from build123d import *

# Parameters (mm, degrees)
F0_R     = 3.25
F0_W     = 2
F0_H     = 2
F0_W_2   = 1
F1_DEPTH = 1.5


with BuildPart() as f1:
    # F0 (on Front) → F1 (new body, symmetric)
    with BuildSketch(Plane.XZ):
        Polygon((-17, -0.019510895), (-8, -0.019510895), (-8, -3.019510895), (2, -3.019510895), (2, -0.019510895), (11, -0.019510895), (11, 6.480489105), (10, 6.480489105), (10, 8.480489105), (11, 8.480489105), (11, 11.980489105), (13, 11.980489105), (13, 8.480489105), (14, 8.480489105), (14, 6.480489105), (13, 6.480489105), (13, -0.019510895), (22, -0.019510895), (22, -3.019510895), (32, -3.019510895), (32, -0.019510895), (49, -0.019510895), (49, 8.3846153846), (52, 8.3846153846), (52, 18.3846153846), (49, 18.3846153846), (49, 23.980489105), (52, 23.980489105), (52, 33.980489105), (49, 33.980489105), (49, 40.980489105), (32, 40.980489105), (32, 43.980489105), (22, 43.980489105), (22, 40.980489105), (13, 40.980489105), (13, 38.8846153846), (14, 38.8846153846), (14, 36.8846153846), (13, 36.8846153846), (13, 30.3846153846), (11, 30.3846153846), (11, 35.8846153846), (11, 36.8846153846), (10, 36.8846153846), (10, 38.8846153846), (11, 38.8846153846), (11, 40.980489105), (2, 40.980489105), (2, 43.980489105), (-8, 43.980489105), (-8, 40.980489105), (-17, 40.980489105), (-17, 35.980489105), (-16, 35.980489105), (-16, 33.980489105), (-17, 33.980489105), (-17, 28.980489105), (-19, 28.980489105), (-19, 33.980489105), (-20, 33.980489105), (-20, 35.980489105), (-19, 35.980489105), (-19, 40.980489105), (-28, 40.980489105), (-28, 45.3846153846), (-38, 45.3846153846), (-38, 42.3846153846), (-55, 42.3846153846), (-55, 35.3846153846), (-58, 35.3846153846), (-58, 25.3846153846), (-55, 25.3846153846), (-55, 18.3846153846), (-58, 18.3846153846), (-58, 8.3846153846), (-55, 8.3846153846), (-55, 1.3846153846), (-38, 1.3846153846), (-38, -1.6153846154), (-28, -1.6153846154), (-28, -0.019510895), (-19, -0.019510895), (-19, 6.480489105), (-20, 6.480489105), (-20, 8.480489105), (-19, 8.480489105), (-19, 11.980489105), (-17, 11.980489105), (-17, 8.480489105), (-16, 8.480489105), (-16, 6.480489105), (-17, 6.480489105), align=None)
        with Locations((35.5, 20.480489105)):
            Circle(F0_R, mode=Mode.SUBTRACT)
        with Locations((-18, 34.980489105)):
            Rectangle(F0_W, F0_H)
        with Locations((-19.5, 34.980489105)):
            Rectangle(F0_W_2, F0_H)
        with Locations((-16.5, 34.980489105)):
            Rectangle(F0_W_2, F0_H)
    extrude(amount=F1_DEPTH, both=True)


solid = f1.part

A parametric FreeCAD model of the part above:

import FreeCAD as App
import Part
import Sketcher
from FreeCAD import Vector


def add_polygon(sketch, points):
    """Adds a closed chain of lines whose ends are joined by coincident constraints."""
    first, n = sketch.GeometryCount, len(points)
    for a, b in zip(points, points[1:] + points[:1]):
        sketch.addGeometry(Part.LineSegment(App.Vector(*a, 0), App.Vector(*b, 0)), False)
    for i in range(n):
        sketch.addConstraint(Sketcher.Constraint("Coincident", first + i, 2, first + (i + 1) % n, 1))

doc = App.newDocument("Part")
params = doc.addObject("Spreadsheet::Sheet", "Params")
for row, (alias, value) in enumerate([
    ("sketch1_diameter", "6.5 mm"),
    ("sketch1_width", "2 mm"),
    ("sketch1_width2", "9 mm"),
    ("sketch1_width3", "10 mm"),
    ("sketch1_width4", "17 mm"),
    ("pad1_length", "3 mm"),
], start=1):
    params.set(f"A{row}", alias)
    params.set(f"B{row}", "=" + value)
    params.setAlias(f"B{row}", alias)

body = doc.addObject("PartDesign::Body", "Body")

# Sketch on XZ plane
sketch1 = doc.addObject("Sketcher::SketchObject", "Sketch")
body.addObject(sketch1)
sketch1.AttachmentSupport = (doc.XZ_Plane, [""])
sketch1.MapMode = "FlatFace"
add_polygon(sketch1, [(-17, 41), (-17, 36), (-19, 36), (-19, 41), (-28, 41), (-28, 45.4), (-38, 45.4), (-38, 42.4), (-55, 42.4), (-55, 35.4), (-58, 35.4), (-58, 25.4), (-55, 25.4), (-55, 18.4), (-58, 18.4), (-58, 8.4), (-55, 8.4), (-55, 1.4), (-38, 1.4), (-38, -1.6), (-28, -1.6), (-28, 0), (-19, 0), (-19, 6.5), (-20, 6.5), (-20, 8.5), (-19, 8.5), (-19, 12), (-17, 12), (-17, 8.5), (-16, 8.5), (-16, 6.5), (-17, 6.5), (-17, 0), (-8, 0), (-8, -3), (2, -3), (2, 0), (11, 0), (11, 6.5), (10, 6.5), (10, 8.5), (11, 8.5), (11, 12), (13, 12), (13, 8.5), (14, 8.5), (14, 6.5), (13, 6.5), (13, 0), (22, 0), (22, -3), (32, -3), (32, 0), (49, 0), (49, 8.4), (52, 8.4), (52, 18.4), (49, 18.4), (49, 24), (52, 24), (52, 34), (49, 34), (49, 41), (32, 41), (32, 44), (22, 44), (22, 41), (13, 41), (13, 38.9), (14, 38.9), (14, 36.9), (13, 36.9), (13, 30.4), (11, 30.4), (11, 36.9), (10, 36.9), (10, 38.9), (11, 38.9), (11, 41), (2, 41), (2, 44), (-8, 44), (-8, 41)])  # lines 0-83
sketch1.addGeometry(Part.Circle(Vector(35.5, 20.5, 0), Vector(0, 0, 1), 3.2), False)  # 84
add_polygon(sketch1, [(-19, 34), (-17, 34), (-17, 29), (-19, 29)])  # lines 85-88
sketch1.addConstraint(Sketcher.Constraint("Vertical", 0))
sketch1.addConstraint(Sketcher.Constraint("Horizontal", 1))
sketch1.addConstraint(Sketcher.Constraint("Vertical", 2))
sketch1.addConstraint(Sketcher.Constraint("Horizontal", 3))
sketch1.addConstraint(Sketcher.Constraint("Vertical", 4))
sketch1.addConstraint(Sketcher.Constraint("Horizontal", 5))
sketch1.addConstraint(Sketcher.Constraint("Vertical", 6))
sketch1.addConstraint(Sketcher.Constraint("Horizontal", 7))
sketch1.addConstraint(Sketcher.Constraint("Vertical", 8))
sketch1.addConstraint(Sketcher.Constraint("Horizontal", 9))
sketch1.addConstraint(Sketcher.Constraint("Vertical", 10))
sketch1.addConstraint(Sketcher.Constraint("Horizontal", 11))
sketch1.addConstraint(Sketcher.Constraint("Vertical", 12))
sketch1.addConstraint(Sketcher.Constraint("Horizontal", 13))
sketch1.addConstraint(Sketcher.Constraint("Vertical", 14))
sketch1.addConstraint(Sketcher.Constraint("Horizontal", 15))
sketch1.addConstraint(Sketcher.Constraint("Vertical", 16))
sketch1.addConstraint(Sketcher.Constraint("Horizontal", 17))
sketch1.addConstraint(Sketcher.Constraint("Vertical", 18))
sketch1.addConstraint(Sketcher.Constraint("Horizontal", 19))
sketch1.addConstraint(Sketcher.Constraint("Vertical", 20))
sketch1.addConstraint(Sketcher.Constraint("Horizontal", 21))
sketch1.addConstraint(Sketcher.Constraint("Vertical", 22))
sketch1.addConstraint(Sketcher.Constraint("Horizontal", 23))
sketch1.addConstraint(Sketcher.Constraint("Vertical", 24))
sketch1.addConstraint(Sketcher.Constraint("Horizontal", 25))
sketch1.addConstraint(Sketcher.Constraint("Vertical", 26))
sketch1.addConstraint(Sketcher.Constraint("Horizontal", 27))
sketch1.addConstraint(Sketcher.Constraint("Vertical", 28))
sketch1.addConstraint(Sketcher.Constraint("Horizontal", 29))
sketch1.addConstraint(Sketcher.Constraint("Vertical", 30))
sketch1.addConstraint(Sketcher.Constraint("Horizontal", 31))
sketch1.addConstraint(Sketcher.Constraint("Vertical", 32))
sketch1.addConstraint(Sketcher.Constraint("Horizontal", 33))
sketch1.addConstraint(Sketcher.Constraint("Vertical", 34))
sketch1.addConstraint(Sketcher.Constraint("Horizontal", 35))
sketch1.addConstraint(Sketcher.Constraint("Vertical", 36))
sketch1.addConstraint(Sketcher.Constraint("Horizontal", 37))
sketch1.addConstraint(Sketcher.Constraint("Vertical", 38))
sketch1.addConstraint(Sketcher.Constraint("Horizontal", 39))
sketch1.addConstraint(Sketcher.Constraint("Vertical", 40))
sketch1.addConstraint(Sketcher.Constraint("Horizontal", 41))
sketch1.addConstraint(Sketcher.Constraint("Vertical", 42))
sketch1.addConstraint(Sketcher.Constraint("Horizontal", 43))
sketch1.addConstraint(Sketcher.Constraint("Vertical", 44))
sketch1.addConstraint(Sketcher.Constraint("Horizontal", 45))
sketch1.addConstraint(Sketcher.Constraint("Vertical", 46))
sketch1.addConstraint(Sketcher.Constraint("Horizontal", 47))
sketch1.addConstraint(Sketcher.Constraint("Vertical", 48))
sketch1.addConstraint(Sketcher.Constraint("Horizontal", 49))
sketch1.addConstraint(Sketcher.Constraint("Vertical", 50))
sketch1.addConstraint(Sketcher.Constraint("Horizontal", 51))
sketch1.addConstraint(Sketcher.Constraint("Vertical", 52))
sketch1.addConstraint(Sketcher.Constraint("Horizontal", 53))
sketch1.addConstraint(Sketcher.Constraint("Vertical", 54))
sketch1.addConstraint(Sketcher.Constraint("Horizontal", 55))
sketch1.addConstraint(Sketcher.Constraint("Vertical", 56))
sketch1.addConstraint(Sketcher.Constraint("Horizontal", 57))
sketch1.addConstraint(Sketcher.Constraint("Vertical", 58))
sketch1.addConstraint(Sketcher.Constraint("Horizontal", 59))
sketch1.addConstraint(Sketcher.Constraint("Vertical", 60))
sketch1.addConstraint(Sketcher.Constraint("Horizontal", 61))
sketch1.addConstraint(Sketcher.Constraint("Vertical", 62))
sketch1.addConstraint(Sketcher.Constraint("Horizontal", 63))
sketch1.addConstraint(Sketcher.Constraint("Vertical", 64))
sketch1.addConstraint(Sketcher.Constraint("Horizontal", 65))
sketch1.addConstraint(Sketcher.Constraint("Vertical", 66))
sketch1.addConstraint(Sketcher.Constraint("Horizontal", 67))
sketch1.addConstraint(Sketcher.Constraint("Vertical", 68))
sketch1.addConstraint(Sketcher.Constraint("Horizontal", 69))
sketch1.addConstraint(Sketcher.Constraint("Vertical", 70))
sketch1.addConstraint(Sketcher.Constraint("Horizontal", 71))
sketch1.addConstraint(Sketcher.Constraint("Vertical", 72))
sketch1.addConstraint(Sketcher.Constraint("Horizontal", 73))
sketch1.addConstraint(Sketcher.Constraint("Vertical", 74))
sketch1.addConstraint(Sketcher.Constraint("Horizontal", 75))
sketch1.addConstraint(Sketcher.Constraint("Vertical", 76))
sketch1.addConstraint(Sketcher.Constraint("Horizontal", 77))
sketch1.addConstraint(Sketcher.Constraint("Vertical", 78))
sketch1.addConstraint(Sketcher.Constraint("Horizontal", 79))
sketch1.addConstraint(Sketcher.Constraint("Vertical", 80))
sketch1.addConstraint(Sketcher.Constraint("Horizontal", 81))
sketch1.addConstraint(Sketcher.Constraint("Vertical", 82))
sketch1.addConstraint(Sketcher.Constraint("Horizontal", 83))
sketch1.addConstraint(Sketcher.Constraint("Horizontal", 85))
sketch1.addConstraint(Sketcher.Constraint("Vertical", 86))
sketch1.addConstraint(Sketcher.Constraint("Horizontal", 87))
sketch1.addConstraint(Sketcher.Constraint("Vertical", 88))
sketch1.addConstraint(Sketcher.Constraint("Horizontal", 25, 2, 28, 2))
sketch1.addConstraint(Sketcher.Constraint("Horizontal", 23, 2, 30, 2))
sketch1.addConstraint(Sketcher.Constraint("Horizontal", 21, 2, 32, 2))
sketch1.addConstraint(Sketcher.Constraint("Horizontal", 33, 2, 36, 2))
sketch1.addConstraint(Sketcher.Constraint("Horizontal", 31, 2, 38, 2))
sketch1.addConstraint(Sketcher.Constraint("Horizontal", 29, 2, 40, 2))
sketch1.addConstraint(Sketcher.Constraint("Horizontal", 27, 2, 42, 2))
sketch1.addConstraint(Sketcher.Constraint("Horizontal", 41, 2, 44, 2))
sketch1.addConstraint(Sketcher.Constraint("Horizontal", 39, 2, 46, 2))
sketch1.addConstraint(Sketcher.Constraint("Horizontal", 37, 2, 48, 2))
sketch1.addConstraint(Sketcher.Constraint("Horizontal", 35, 2, 50, 2))
sketch1.addConstraint(Sketcher.Constraint("Horizontal", 49, 2, 52, 2))
sketch1.addConstraint(Sketcher.Constraint("Horizontal", 15, 2, 54, 2))
sketch1.addConstraint(Sketcher.Constraint("Horizontal", 13, 2, 56, 2))
sketch1.addConstraint(Sketcher.Constraint("Horizontal", 3, 2, 62, 2))
sketch1.addConstraint(Sketcher.Constraint("Horizontal", 63, 2, 66, 2))
sketch1.addConstraint(Sketcher.Constraint("Horizontal", 71, 2, 74, 2))
sketch1.addConstraint(Sketcher.Constraint("Horizontal", 69, 2, 76, 2))
sketch1.addConstraint(Sketcher.Constraint("Horizontal", 67, 2, 78, 2))
sketch1.addConstraint(Sketcher.Constraint("Horizontal", 65, 2, 80, 2))
sketch1.addConstraint(Sketcher.Constraint("Horizontal", 79, 2, 82, 2))
sketch1.addConstraint(Sketcher.Constraint("Horizontal", 61, 2, 85, 2))
sketch1.addConstraint(Sketcher.Constraint("Vertical", 8, 2, 11, 2))
sketch1.addConstraint(Sketcher.Constraint("Vertical", 10, 2, 13, 2))
sketch1.addConstraint(Sketcher.Constraint("Vertical", 12, 2, 15, 2))
sketch1.addConstraint(Sketcher.Constraint("Vertical", 6, 2, 17, 2))
sketch1.addConstraint(Sketcher.Constraint("Vertical", 4, 2, 19, 2))
sketch1.addConstraint(Sketcher.Constraint("Vertical", 2, 2, 21, 2))
sketch1.addConstraint(Sketcher.Constraint("Vertical", 22, 2, 25, 2))
sketch1.addConstraint(Sketcher.Constraint("Vertical", 0, 2, 27, 2))
sketch1.addConstraint(Sketcher.Constraint("Vertical", 28, 2, 31, 2))
sketch1.addConstraint(Sketcher.Constraint("Vertical", 38, 2, 41, 2))
sketch1.addConstraint(Sketcher.Constraint("Vertical", 44, 2, 47, 2))
sketch1.addConstraint(Sketcher.Constraint("Vertical", 54, 2, 57, 2))
sketch1.addConstraint(Sketcher.Constraint("Vertical", 56, 2, 59, 2))
sketch1.addConstraint(Sketcher.Constraint("Vertical", 58, 2, 61, 2))
sketch1.addConstraint(Sketcher.Constraint("Vertical", 52, 2, 63, 2))
sketch1.addConstraint(Sketcher.Constraint("Vertical", 50, 2, 65, 2))
sketch1.addConstraint(Sketcher.Constraint("Vertical", 48, 2, 67, 2))
sketch1.addConstraint(Sketcher.Constraint("Vertical", 46, 2, 69, 2))
sketch1.addConstraint(Sketcher.Constraint("Vertical", 68, 2, 71, 2))
sketch1.addConstraint(Sketcher.Constraint("Vertical", 42, 2, 73, 2))
sketch1.addConstraint(Sketcher.Constraint("Vertical", 40, 2, 75, 2))
sketch1.addConstraint(Sketcher.Constraint("Vertical", 74, 2, 77, 2))
sketch1.addConstraint(Sketcher.Constraint("Vertical", 36, 2, 79, 2))
sketch1.addConstraint(Sketcher.Constraint("Vertical", 34, 2, 81, 2))
sketch1.addConstraint(Sketcher.Constraint("Vertical", 83, 2, 85, 2))
sketch1.addConstraint(Sketcher.Constraint("Vertical", 26, 2, 87, 2))
sketch1.addConstraint(Sketcher.Constraint("Equal", 25, 29))
sketch1.addConstraint(Sketcher.Constraint("Equal", 21, 33))
sketch1.addConstraint(Sketcher.Constraint("Equal", 19, 35))
sketch1.addConstraint(Sketcher.Constraint("Equal", 33, 37))
sketch1.addConstraint(Sketcher.Constraint("Equal", 31, 39))
sketch1.addConstraint(Sketcher.Constraint("Equal", 27, 43))
sketch1.addConstraint(Sketcher.Constraint("Equal", 41, 45))
sketch1.addConstraint(Sketcher.Constraint("Equal", 37, 49))
sketch1.addConstraint(Sketcher.Constraint("Equal", 35, 51))
sketch1.addConstraint(Sketcher.Constraint("Equal", 17, 53))
sketch1.addConstraint(Sketcher.Constraint("Equal", 15, 55))
sketch1.addConstraint(Sketcher.Constraint("Equal", 61, 6))
sketch1.addConstraint(Sketcher.Constraint("Equal", 81, 10))
sketch1.addConstraint(Sketcher.Constraint("Equal", 8, 12))
sketch1.addConstraint(Sketcher.Constraint("Equal", 10, 14))
sketch1.addConstraint(Sketcher.Constraint("Equal", 12, 16))
sketch1.addConstraint(Sketcher.Constraint("Equal", 6, 18))
sketch1.addConstraint(Sketcher.Constraint("Equal", 87, 24))
sketch1.addConstraint(Sketcher.Constraint("Equal", 18, 34))
sketch1.addConstraint(Sketcher.Constraint("Equal", 56, 60))
sketch1.addConstraint(Sketcher.Constraint("Equal", 16, 62))
sketch1.addConstraint(Sketcher.Constraint("Equal", 52, 64))
sketch1.addConstraint(Sketcher.Constraint("Equal", 46, 70))
sketch1.addConstraint(Sketcher.Constraint("Equal", 48, 72))
sketch1.addConstraint(Sketcher.Constraint("Equal", 2, 86))
sketch1.addConstraint(Sketcher.Constraint("Diameter", 84, 6.5))
sketch1.addConstraint(Sketcher.Constraint("DistanceX", 1, 2, 1, 1, 2.0))
sketch1.addConstraint(Sketcher.Constraint("DistanceX", 3, 2, 3, 1, 9.0))
sketch1.addConstraint(Sketcher.Constraint("DistanceX", 5, 2, 5, 1, 10.0))
sketch1.addConstraint(Sketcher.Constraint("DistanceX", 7, 2, 7, 1, 17.0))
sketch1.addConstraint(Sketcher.Constraint("DistanceX", 9, 2, 9, 1, 3.0))
sketch1.addConstraint(Sketcher.Constraint("DistanceX", 23, 2, 23, 1, 1.0))
sketch1.addConstraint(Sketcher.Constraint("DistanceY", 0, 2, 0, 1, 5.0))
sketch1.addConstraint(Sketcher.Constraint("DistanceY", 8, 2, 8, 1, 7.0))
sketch1.addConstraint(Sketcher.Constraint("DistanceY", 22, 1, 22, 2, 6.5))
sketch1.addConstraint(Sketcher.Constraint("DistanceY", 26, 1, 26, 2, 3.5))
sketch1.addConstraint(Sketcher.Constraint("DistanceX", 0, 2, -1, 1, 17.0))
sketch1.addConstraint(Sketcher.Constraint("DistanceX", -1, 1, 84, 3, 35.5))
sketch1.addConstraint(Sketcher.Constraint("DistanceY", 4, 1, 4, 2, 4.404126))
sketch1.addConstraint(Sketcher.Constraint("DistanceY", 20, 1, 20, 2, 1.595874))
sketch1.addConstraint(Sketcher.Constraint("DistanceY", 68, 2, 68, 1, 2.095874))
sketch1.addConstraint(Sketcher.Constraint("DistanceY", -1, 1, 84, 3, 20.480489))
sketch1.addConstraint(Sketcher.Constraint("DistanceY", -1, 1, 0, 2, 35.980489))
sketch1.setExpression("Constraints[249]", "Params.sketch1_diameter")
sketch1.setExpression("Constraints[250]", "Params.sketch1_width")
sketch1.setExpression("Constraints[251]", "Params.sketch1_width2")
sketch1.setExpression("Constraints[252]", "Params.sketch1_width3")
sketch1.setExpression("Constraints[253]", "Params.sketch1_width4")
pad1 = doc.addObject("PartDesign::Pad", "Pad")
body.addObject(pad1)
pad1.Profile = sketch1
pad1.setExpression("Length", "Params.pad1_length")
pad1.Midplane = True

doc.recompute()
